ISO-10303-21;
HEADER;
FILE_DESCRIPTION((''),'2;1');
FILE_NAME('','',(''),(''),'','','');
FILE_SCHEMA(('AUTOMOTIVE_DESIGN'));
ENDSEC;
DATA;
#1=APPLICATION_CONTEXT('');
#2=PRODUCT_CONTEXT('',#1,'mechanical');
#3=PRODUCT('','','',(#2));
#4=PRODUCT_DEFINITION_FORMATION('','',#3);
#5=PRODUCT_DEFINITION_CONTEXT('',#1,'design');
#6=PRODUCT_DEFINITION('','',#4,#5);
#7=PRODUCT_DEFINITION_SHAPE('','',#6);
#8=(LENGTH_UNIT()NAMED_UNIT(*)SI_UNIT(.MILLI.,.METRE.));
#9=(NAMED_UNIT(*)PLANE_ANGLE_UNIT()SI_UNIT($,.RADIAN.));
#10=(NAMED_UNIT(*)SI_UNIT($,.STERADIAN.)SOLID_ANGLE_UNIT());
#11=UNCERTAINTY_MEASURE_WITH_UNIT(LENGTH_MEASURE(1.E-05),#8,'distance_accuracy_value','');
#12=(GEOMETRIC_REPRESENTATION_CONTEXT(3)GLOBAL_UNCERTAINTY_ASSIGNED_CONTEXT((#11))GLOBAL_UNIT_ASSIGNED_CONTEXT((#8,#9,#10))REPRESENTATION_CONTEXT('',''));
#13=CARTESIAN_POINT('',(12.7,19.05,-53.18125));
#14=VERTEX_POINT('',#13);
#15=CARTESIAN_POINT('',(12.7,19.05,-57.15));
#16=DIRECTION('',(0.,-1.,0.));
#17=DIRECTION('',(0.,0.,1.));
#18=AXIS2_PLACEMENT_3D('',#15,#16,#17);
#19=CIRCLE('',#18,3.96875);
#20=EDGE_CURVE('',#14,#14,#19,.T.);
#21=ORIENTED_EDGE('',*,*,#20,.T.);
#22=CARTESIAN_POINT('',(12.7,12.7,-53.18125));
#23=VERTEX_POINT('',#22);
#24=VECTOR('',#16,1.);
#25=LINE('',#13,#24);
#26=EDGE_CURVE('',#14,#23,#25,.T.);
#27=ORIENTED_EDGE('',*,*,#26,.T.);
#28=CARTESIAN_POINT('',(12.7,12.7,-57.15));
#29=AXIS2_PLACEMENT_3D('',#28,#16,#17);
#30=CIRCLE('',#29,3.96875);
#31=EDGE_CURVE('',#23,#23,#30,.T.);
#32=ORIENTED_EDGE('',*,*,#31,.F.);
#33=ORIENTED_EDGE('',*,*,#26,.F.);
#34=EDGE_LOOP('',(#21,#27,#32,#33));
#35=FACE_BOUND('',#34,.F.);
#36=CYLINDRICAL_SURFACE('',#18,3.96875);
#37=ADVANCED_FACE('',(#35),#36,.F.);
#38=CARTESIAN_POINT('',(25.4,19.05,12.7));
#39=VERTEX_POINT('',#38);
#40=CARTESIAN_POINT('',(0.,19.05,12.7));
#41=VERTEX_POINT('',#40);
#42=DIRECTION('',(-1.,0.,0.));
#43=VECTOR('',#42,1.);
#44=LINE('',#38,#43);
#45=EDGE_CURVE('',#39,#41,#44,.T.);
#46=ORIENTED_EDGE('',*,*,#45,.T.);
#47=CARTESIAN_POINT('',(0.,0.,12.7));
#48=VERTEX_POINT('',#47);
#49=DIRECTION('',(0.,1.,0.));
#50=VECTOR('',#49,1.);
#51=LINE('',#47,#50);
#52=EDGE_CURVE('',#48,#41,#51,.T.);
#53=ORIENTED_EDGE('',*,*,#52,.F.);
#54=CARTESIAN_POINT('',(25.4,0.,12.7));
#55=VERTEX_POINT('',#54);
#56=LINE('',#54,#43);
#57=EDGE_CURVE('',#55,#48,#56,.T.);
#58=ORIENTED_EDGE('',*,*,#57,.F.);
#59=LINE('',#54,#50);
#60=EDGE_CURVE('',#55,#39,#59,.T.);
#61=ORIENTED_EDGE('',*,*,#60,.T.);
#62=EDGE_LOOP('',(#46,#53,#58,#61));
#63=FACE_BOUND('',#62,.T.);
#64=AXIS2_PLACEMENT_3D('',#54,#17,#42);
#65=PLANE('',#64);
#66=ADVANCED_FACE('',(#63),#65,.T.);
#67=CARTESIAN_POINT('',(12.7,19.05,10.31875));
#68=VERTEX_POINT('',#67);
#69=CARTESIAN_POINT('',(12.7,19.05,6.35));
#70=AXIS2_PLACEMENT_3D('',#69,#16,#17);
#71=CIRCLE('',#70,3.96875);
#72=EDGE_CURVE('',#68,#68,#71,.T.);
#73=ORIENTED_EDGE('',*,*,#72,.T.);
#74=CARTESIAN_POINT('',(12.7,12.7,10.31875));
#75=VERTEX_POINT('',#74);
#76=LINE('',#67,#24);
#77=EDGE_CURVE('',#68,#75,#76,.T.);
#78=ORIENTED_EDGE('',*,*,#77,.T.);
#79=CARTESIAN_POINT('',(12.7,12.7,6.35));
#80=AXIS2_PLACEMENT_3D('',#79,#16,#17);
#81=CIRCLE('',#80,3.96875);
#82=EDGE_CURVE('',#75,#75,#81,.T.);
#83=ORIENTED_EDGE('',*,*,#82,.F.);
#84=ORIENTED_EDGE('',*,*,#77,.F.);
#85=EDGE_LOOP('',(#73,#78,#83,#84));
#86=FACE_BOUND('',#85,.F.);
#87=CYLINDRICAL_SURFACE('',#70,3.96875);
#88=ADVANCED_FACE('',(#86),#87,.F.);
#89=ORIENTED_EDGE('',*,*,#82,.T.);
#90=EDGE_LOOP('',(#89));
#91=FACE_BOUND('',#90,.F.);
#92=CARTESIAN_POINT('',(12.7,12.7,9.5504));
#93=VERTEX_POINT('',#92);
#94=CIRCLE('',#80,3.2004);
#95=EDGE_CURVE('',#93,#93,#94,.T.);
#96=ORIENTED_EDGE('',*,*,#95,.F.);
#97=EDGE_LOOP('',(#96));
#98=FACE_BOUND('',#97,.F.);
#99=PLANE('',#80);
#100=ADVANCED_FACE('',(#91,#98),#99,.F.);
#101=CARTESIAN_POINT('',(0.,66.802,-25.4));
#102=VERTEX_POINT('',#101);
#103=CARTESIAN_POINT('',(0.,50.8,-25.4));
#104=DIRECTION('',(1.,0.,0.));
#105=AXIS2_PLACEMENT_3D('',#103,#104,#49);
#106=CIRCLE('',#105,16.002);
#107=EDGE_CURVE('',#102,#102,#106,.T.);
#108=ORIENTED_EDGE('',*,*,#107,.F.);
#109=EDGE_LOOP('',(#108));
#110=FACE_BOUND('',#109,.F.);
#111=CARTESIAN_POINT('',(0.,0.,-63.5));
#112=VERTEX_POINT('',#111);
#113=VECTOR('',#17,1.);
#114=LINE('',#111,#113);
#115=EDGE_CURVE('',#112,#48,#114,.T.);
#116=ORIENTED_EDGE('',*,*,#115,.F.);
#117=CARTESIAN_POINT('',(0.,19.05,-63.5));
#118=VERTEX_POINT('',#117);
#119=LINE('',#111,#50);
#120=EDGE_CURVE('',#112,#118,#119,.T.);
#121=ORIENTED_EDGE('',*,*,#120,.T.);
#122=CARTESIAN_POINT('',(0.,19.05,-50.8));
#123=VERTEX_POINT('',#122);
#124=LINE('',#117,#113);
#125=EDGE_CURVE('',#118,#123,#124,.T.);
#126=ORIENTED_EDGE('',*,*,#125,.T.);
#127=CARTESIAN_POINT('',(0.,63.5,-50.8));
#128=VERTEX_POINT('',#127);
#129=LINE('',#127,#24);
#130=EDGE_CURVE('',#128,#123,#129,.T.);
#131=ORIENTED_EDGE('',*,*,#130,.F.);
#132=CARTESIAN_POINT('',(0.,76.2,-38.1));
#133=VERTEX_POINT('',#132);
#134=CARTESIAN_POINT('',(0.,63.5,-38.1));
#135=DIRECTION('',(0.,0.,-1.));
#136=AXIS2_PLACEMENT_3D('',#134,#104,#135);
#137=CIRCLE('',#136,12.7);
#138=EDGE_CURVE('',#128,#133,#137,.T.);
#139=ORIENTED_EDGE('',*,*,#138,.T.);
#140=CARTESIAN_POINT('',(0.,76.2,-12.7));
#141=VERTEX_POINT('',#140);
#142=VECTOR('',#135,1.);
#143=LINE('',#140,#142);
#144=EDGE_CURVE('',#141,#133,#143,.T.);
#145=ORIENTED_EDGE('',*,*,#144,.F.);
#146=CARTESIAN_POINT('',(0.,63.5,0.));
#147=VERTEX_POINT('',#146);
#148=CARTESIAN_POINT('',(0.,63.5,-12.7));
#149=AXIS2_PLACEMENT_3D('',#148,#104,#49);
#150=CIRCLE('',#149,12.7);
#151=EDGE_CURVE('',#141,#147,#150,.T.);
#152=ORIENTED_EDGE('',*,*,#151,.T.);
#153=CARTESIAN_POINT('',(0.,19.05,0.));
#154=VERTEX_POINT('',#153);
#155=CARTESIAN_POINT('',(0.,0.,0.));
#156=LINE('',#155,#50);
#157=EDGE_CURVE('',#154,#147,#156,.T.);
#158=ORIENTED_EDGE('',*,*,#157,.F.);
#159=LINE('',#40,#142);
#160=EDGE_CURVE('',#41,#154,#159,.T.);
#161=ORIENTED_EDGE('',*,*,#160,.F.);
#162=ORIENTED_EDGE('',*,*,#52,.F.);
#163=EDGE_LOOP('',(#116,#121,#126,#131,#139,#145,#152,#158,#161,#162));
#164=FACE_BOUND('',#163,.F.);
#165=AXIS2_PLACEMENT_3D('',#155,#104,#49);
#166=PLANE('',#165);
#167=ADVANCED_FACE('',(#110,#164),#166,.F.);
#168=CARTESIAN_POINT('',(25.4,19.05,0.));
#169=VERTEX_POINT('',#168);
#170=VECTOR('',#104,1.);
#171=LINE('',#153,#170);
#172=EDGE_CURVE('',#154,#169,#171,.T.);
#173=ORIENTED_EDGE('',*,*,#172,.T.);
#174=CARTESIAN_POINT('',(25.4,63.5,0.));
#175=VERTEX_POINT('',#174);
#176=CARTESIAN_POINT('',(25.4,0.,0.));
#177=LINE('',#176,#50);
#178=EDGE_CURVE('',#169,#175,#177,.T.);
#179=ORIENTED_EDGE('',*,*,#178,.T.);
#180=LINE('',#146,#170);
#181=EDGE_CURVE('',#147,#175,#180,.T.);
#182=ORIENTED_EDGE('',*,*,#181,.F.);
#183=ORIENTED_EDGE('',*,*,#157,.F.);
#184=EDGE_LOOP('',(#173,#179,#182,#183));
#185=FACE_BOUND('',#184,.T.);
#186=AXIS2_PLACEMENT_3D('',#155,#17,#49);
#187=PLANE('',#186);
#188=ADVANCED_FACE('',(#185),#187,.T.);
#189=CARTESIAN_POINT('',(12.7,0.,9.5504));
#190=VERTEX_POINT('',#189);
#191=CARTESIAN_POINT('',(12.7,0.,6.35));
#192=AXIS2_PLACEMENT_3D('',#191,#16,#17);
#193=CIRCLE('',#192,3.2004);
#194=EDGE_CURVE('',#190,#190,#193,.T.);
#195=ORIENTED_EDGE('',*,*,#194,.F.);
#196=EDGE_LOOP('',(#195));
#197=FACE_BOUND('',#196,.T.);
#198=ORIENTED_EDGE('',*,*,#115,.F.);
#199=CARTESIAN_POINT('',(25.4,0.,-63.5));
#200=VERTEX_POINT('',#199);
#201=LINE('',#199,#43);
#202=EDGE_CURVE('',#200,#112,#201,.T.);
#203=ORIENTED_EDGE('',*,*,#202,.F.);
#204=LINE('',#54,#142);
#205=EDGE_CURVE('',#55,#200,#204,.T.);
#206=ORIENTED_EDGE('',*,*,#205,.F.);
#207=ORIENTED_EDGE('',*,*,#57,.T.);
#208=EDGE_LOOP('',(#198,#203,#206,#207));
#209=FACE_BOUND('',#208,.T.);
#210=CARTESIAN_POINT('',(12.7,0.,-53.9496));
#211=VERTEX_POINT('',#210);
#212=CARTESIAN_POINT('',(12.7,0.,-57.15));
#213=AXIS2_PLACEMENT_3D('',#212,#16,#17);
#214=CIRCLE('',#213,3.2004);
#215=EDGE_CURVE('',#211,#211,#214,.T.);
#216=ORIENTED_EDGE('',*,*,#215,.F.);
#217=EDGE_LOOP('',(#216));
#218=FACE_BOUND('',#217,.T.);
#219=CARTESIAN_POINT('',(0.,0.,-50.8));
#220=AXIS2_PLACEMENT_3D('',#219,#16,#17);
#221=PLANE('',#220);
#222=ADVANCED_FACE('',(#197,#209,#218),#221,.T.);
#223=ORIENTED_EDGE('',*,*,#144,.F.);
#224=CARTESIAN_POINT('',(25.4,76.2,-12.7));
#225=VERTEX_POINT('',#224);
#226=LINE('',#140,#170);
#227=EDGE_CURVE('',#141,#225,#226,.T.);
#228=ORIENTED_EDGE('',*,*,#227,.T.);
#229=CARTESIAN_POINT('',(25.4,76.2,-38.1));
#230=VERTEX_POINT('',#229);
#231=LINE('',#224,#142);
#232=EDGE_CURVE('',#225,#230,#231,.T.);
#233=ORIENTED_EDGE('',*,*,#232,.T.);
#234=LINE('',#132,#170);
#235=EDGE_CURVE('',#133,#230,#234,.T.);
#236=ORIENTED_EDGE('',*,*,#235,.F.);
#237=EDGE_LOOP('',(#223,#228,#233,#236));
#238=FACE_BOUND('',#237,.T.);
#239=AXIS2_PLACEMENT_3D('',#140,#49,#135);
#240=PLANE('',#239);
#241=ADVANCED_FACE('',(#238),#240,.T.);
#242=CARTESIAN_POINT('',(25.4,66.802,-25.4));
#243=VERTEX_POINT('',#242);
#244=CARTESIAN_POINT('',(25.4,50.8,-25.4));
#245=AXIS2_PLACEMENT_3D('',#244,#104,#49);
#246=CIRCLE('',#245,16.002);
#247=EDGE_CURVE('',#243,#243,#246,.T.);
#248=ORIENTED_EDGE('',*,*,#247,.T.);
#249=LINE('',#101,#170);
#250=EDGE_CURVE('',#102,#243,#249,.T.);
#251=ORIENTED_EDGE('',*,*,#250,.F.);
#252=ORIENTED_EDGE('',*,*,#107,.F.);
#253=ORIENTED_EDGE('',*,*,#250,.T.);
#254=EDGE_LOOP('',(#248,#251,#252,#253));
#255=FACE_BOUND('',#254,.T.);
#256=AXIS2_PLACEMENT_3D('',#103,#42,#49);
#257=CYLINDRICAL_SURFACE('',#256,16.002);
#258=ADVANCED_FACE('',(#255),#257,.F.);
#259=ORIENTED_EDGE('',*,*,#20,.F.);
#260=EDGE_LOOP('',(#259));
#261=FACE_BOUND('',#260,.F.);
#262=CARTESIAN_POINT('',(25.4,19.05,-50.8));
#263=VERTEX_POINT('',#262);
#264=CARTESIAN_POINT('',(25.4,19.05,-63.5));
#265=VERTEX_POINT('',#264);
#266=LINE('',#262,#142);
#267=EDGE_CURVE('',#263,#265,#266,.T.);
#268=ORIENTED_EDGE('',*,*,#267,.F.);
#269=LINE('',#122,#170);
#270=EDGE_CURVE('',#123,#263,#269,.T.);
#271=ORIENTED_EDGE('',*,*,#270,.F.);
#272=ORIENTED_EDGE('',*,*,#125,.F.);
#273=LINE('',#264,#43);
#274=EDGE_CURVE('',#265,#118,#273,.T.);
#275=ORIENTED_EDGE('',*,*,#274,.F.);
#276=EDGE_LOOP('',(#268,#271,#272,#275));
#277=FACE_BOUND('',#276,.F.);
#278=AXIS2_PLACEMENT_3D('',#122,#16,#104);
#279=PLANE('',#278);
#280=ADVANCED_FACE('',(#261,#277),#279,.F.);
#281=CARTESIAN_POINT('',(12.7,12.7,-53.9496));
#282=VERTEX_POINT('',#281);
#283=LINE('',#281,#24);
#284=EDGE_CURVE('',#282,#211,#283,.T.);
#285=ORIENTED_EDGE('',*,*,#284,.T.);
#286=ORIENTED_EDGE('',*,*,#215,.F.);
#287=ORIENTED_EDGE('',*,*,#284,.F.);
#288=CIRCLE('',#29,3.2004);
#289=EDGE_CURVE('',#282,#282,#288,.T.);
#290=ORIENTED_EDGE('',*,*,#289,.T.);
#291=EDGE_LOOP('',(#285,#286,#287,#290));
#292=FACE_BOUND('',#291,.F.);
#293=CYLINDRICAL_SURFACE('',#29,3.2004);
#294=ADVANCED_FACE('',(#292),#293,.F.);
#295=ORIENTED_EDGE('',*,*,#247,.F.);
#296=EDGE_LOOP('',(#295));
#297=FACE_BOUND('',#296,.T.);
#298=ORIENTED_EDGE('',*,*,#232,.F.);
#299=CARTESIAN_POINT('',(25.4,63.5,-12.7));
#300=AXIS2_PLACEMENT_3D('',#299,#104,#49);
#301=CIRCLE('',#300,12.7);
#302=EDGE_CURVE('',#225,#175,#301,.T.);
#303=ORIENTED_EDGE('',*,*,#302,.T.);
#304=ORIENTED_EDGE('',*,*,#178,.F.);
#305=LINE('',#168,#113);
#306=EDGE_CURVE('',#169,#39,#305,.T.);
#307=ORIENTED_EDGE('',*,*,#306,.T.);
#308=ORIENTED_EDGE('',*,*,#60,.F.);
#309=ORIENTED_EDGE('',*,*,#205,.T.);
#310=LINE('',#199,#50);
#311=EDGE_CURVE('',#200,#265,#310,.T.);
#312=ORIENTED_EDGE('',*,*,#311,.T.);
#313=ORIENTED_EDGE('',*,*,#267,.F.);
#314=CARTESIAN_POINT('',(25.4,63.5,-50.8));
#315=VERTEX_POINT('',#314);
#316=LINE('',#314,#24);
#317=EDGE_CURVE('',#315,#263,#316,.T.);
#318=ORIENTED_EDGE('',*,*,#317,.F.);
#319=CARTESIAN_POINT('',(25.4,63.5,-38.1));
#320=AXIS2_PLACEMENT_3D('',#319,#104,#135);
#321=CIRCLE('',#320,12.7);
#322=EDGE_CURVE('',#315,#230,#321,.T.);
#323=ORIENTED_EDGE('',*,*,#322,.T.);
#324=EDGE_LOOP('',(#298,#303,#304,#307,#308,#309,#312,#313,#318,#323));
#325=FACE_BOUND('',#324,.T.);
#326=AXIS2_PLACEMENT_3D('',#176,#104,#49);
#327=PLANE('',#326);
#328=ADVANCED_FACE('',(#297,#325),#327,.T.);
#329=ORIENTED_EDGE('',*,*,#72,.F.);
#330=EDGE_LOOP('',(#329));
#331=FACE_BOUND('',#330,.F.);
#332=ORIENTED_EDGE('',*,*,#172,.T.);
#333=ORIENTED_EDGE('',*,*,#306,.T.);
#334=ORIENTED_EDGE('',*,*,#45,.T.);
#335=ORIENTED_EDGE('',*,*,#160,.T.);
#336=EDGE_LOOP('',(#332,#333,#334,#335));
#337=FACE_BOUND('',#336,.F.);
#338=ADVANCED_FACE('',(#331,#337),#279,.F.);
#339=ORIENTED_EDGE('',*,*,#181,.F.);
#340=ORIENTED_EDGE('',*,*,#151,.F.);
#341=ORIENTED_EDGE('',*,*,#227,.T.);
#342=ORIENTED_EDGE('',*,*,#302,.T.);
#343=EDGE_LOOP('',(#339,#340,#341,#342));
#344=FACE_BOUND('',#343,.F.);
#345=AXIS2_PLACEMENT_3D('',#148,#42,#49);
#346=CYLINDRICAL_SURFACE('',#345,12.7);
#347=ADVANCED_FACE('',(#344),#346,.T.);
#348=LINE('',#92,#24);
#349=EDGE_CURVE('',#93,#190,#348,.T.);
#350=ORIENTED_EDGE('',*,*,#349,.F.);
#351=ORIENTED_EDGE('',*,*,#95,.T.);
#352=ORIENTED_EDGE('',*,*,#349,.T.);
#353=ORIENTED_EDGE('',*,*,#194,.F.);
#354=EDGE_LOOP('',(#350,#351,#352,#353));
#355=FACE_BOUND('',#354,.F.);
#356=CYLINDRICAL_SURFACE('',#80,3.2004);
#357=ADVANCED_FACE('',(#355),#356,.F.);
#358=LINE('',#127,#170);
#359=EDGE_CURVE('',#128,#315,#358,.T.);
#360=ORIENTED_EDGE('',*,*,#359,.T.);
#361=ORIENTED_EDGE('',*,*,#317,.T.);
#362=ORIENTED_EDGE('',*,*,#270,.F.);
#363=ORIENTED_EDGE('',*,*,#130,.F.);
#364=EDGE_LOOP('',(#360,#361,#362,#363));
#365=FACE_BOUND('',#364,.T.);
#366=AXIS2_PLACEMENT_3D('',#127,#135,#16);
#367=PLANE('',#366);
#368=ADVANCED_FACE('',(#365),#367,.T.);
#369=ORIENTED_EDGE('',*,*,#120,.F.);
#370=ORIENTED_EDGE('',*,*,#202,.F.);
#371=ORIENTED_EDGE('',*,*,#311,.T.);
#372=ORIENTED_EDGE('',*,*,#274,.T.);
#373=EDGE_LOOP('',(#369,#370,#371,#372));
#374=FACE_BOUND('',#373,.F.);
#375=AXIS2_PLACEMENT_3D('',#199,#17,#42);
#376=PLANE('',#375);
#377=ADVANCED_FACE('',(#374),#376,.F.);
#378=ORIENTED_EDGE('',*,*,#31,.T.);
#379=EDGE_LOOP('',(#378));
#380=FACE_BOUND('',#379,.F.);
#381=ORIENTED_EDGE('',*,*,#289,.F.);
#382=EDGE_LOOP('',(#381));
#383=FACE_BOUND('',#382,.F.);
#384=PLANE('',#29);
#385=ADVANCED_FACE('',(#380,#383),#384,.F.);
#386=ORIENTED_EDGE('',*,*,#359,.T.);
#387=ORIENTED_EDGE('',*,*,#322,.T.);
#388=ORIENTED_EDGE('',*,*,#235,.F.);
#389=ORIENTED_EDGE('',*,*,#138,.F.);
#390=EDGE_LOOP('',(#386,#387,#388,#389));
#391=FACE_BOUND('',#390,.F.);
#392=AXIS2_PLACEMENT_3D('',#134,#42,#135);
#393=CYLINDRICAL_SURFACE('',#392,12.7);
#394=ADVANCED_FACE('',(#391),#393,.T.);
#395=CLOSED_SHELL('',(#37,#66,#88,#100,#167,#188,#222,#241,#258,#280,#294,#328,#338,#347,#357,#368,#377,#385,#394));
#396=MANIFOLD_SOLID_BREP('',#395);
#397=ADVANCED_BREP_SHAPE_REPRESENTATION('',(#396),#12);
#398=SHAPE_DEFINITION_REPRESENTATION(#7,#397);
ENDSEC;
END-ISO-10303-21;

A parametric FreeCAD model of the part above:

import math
import FreeCAD as App
import Part
import Sketcher
from FreeCAD import Vector
Q = App.Units.Quantity


def add_polygon(sketch, points):
    """Adds a closed chain of lines whose ends are joined by coincident constraints."""
    first, n = sketch.GeometryCount, len(points)
    for a, b in zip(points, points[1:] + points[:1]):
        sketch.addGeometry(Part.LineSegment(App.Vector(*a, 0), App.Vector(*b, 0)), False)
    for i in range(n):
        sketch.addConstraint(Sketcher.Constraint("Coincident", first + i, 2, first + (i + 1) % n, 1))

doc = App.newDocument("Part")
body = doc.addObject("PartDesign::Body", "Body")

sketch1 = doc.addObject("Sketcher::SketchObject", "Sketch")
body.addObject(sketch1)
sketch1.AttachmentSupport = (doc.YZ_Plane, [""])
sketch1.MapMode = "FlatFace"
sketch1.addGeometry([
    Part.LineSegment(Vector(64, 0, 0), Vector(0, 0, 0)),
    Part.LineSegment(Vector(0, 0, 0), Vector(0, -51, 0)),
    Part.LineSegment(Vector(0, -51, 0), Vector(64, -51, 0)),
    Part.ArcOfCircle(Part.Circle(Vector(64, -38, 0), Vector(0, 0, 1), 13), math.radians(-90), math.radians(0)),
    Part.LineSegment(Vector(76, -38, 0), Vector(76, -13, 0)),
    Part.ArcOfCircle(Part.Circle(Vector(64, -13, 0), Vector(0, 0, 1), 13), math.radians(0), math.radians(90)),
    Part.Circle(Vector(51, -25, 0), Vector(0, 0, 1), 16),
], False)
sketch1.addConstraint([
    Sketcher.Constraint("Coincident", 0, 2, 1, 1),
    Sketcher.Constraint("Coincident", 1, 2, 2, 1),
    Sketcher.Constraint("Tangent", 2, 2, 3, 1),
    Sketcher.Constraint("Tangent", 3, 2, 4, 1),
    Sketcher.Constraint("Tangent", 4, 2, 5, 1),
    Sketcher.Constraint("Tangent", 5, 2, 0, 1),
    Sketcher.Constraint("Horizontal", 0),
    Sketcher.Constraint("Vertical", 1),
    Sketcher.Constraint("Horizontal", 2),
    Sketcher.Constraint("Vertical", 4),
    Sketcher.Constraint("Coincident", 0, 2, -1, 1),
    Sketcher.Constraint("Equal", 3, 5),
    Sketcher.Constraint("Radius", 3, Q("0.5 in")),
    Sketcher.Constraint("Diameter", 6, Q("1.26 in")),
    Sketcher.Constraint("DistanceY", 1, 2, 1, 1, Q("2 in")),
    Sketcher.Constraint("DistanceX", -1, 1, 6, 3, Q("2 in")),
    Sketcher.Constraint("DistanceX", -1, 1, 3, 2, Q("3 in")),
    Sketcher.Constraint("DistanceY", 6, 3, 5, 3, Q("0.5 in")),
])
pad1 = doc.addObject("PartDesign::Pad", "Pad")
body.addObject(pad1)
pad1.Profile = sketch1
pad1.Length = Q("1 in")

sketch2 = doc.addObject("Sketcher::SketchObject", "Sketch001")
body.addObject(sketch2)
sketch2.AttachmentSupport = (doc.XZ_Plane, [""])
sketch2.MapMode = "FlatFace"
add_polygon(sketch2, [(0, 13), (0, 0), (25, 0), (25, 13)])
add_polygon(sketch2, [(25, -51), (0, -51), (0, -64), (25, -64)])
sketch2.addConstraint([
    Sketcher.Constraint("Vertical", 0),
    Sketcher.Constraint("Horizontal", 1),
    Sketcher.Constraint("Vertical", 2),
    Sketcher.Constraint("Horizontal", 3),
    Sketcher.Constraint("Horizontal", 4),
    Sketcher.Constraint("Vertical", 5),
    Sketcher.Constraint("Horizontal", 6),
    Sketcher.Constraint("Vertical", 7),
    Sketcher.Constraint("Coincident", 0, 2, -1, 1),
    Sketcher.Constraint("PointOnObject", 4, 2, -2),
    Sketcher.Constraint("Vertical", 2, 2, 6, 2),
    Sketcher.Constraint("Equal", 2, 5),
    Sketcher.Constraint("DistanceX", 1, 1, 1, 2, Q("1 in")),
    Sketcher.Constraint("DistanceY", 0, 2, 0, 1, Q("0.5 in")),
    Sketcher.Constraint("DistanceY", 4, 2, -1, 1, Q("2 in")),
])
pad2 = doc.addObject("PartDesign::Pad", "Pad001")
body.addObject(pad2)
pad2.Profile = sketch2
pad2.Length = Q("0.75 in")
pad2.Reversed = True

sketch3 = doc.addObject("Sketcher::SketchObject", "Sketch002")
body.addObject(sketch3)
sketch3.AttachmentSupport = (doc.XZ_Plane, [""])
sketch3.MapMode = "FlatFace"
sketch3.AttachmentOffset = App.Placement(Vector(0, 0, -0.75 * 25.4), App.Rotation())
sketch3.addGeometry(Part.Circle(Vector(12.7, -57.1, 0), Vector(0, 0, 1), 3.2), False)
sketch3.addConstraint([
    Sketcher.Constraint("Diameter", 0, Q("0.252 in")),
    Sketcher.Constraint("DistanceX", -1, 1, 0, 3, Q("0.5 in")),
    Sketcher.Constraint("DistanceY", 0, 3, -1, 1, Q("2.25 in")),
])
doc.recompute()
hole = doc.addObject("PartDesign::Hole", "Hole")
body.addObject(hole)
hole.Profile = sketch3
hole.ThreadType = "None"
hole.Diameter = Q("0.252 in")
hole.DepthType = "ThroughAll"
hole.HoleCutType = "Counterbore"
hole.HoleCutDiameter = Q("0.3125 in")
hole.HoleCutDepth = Q("0.25 in")
hole.Reversed = True

sketch4 = doc.addObject("Sketcher::SketchObject", "Sketch003")
body.addObject(sketch4)
sketch4.AttachmentSupport = (doc.XZ_Plane, [""])
sketch4.MapMode = "FlatFace"
sketch4.AttachmentOffset = App.Placement(Vector(0, 0, -0.75 * 25.4), App.Rotation())
sketch4.addGeometry(Part.Circle(Vector(12.7, 6.3, 0), Vector(0, 0, 1), 3.2), False)
sketch4.addConstraint([
    Sketcher.Constraint("Diameter", 0, Q("0.252 in")),
    Sketcher.Constraint("DistanceX", -1, 1, 0, 3, Q("0.5 in")),
    Sketcher.Constraint("DistanceY", -1, 1, 0, 3, Q("0.25 in")),
])
doc.recompute()
hole2 = doc.addObject("PartDesign::Hole", "Hole001")
body.addObject(hole2)
hole2.Profile = sketch4
hole2.ThreadType = "None"
hole2.Diameter = Q("0.252 in")
hole2.DepthType = "ThroughAll"
hole2.HoleCutType = "Counterbore"
hole2.HoleCutDiameter = Q("0.3125 in")
hole2.HoleCutDepth = Q("0.25 in")
hole2.Reversed = True

doc.recompute()
